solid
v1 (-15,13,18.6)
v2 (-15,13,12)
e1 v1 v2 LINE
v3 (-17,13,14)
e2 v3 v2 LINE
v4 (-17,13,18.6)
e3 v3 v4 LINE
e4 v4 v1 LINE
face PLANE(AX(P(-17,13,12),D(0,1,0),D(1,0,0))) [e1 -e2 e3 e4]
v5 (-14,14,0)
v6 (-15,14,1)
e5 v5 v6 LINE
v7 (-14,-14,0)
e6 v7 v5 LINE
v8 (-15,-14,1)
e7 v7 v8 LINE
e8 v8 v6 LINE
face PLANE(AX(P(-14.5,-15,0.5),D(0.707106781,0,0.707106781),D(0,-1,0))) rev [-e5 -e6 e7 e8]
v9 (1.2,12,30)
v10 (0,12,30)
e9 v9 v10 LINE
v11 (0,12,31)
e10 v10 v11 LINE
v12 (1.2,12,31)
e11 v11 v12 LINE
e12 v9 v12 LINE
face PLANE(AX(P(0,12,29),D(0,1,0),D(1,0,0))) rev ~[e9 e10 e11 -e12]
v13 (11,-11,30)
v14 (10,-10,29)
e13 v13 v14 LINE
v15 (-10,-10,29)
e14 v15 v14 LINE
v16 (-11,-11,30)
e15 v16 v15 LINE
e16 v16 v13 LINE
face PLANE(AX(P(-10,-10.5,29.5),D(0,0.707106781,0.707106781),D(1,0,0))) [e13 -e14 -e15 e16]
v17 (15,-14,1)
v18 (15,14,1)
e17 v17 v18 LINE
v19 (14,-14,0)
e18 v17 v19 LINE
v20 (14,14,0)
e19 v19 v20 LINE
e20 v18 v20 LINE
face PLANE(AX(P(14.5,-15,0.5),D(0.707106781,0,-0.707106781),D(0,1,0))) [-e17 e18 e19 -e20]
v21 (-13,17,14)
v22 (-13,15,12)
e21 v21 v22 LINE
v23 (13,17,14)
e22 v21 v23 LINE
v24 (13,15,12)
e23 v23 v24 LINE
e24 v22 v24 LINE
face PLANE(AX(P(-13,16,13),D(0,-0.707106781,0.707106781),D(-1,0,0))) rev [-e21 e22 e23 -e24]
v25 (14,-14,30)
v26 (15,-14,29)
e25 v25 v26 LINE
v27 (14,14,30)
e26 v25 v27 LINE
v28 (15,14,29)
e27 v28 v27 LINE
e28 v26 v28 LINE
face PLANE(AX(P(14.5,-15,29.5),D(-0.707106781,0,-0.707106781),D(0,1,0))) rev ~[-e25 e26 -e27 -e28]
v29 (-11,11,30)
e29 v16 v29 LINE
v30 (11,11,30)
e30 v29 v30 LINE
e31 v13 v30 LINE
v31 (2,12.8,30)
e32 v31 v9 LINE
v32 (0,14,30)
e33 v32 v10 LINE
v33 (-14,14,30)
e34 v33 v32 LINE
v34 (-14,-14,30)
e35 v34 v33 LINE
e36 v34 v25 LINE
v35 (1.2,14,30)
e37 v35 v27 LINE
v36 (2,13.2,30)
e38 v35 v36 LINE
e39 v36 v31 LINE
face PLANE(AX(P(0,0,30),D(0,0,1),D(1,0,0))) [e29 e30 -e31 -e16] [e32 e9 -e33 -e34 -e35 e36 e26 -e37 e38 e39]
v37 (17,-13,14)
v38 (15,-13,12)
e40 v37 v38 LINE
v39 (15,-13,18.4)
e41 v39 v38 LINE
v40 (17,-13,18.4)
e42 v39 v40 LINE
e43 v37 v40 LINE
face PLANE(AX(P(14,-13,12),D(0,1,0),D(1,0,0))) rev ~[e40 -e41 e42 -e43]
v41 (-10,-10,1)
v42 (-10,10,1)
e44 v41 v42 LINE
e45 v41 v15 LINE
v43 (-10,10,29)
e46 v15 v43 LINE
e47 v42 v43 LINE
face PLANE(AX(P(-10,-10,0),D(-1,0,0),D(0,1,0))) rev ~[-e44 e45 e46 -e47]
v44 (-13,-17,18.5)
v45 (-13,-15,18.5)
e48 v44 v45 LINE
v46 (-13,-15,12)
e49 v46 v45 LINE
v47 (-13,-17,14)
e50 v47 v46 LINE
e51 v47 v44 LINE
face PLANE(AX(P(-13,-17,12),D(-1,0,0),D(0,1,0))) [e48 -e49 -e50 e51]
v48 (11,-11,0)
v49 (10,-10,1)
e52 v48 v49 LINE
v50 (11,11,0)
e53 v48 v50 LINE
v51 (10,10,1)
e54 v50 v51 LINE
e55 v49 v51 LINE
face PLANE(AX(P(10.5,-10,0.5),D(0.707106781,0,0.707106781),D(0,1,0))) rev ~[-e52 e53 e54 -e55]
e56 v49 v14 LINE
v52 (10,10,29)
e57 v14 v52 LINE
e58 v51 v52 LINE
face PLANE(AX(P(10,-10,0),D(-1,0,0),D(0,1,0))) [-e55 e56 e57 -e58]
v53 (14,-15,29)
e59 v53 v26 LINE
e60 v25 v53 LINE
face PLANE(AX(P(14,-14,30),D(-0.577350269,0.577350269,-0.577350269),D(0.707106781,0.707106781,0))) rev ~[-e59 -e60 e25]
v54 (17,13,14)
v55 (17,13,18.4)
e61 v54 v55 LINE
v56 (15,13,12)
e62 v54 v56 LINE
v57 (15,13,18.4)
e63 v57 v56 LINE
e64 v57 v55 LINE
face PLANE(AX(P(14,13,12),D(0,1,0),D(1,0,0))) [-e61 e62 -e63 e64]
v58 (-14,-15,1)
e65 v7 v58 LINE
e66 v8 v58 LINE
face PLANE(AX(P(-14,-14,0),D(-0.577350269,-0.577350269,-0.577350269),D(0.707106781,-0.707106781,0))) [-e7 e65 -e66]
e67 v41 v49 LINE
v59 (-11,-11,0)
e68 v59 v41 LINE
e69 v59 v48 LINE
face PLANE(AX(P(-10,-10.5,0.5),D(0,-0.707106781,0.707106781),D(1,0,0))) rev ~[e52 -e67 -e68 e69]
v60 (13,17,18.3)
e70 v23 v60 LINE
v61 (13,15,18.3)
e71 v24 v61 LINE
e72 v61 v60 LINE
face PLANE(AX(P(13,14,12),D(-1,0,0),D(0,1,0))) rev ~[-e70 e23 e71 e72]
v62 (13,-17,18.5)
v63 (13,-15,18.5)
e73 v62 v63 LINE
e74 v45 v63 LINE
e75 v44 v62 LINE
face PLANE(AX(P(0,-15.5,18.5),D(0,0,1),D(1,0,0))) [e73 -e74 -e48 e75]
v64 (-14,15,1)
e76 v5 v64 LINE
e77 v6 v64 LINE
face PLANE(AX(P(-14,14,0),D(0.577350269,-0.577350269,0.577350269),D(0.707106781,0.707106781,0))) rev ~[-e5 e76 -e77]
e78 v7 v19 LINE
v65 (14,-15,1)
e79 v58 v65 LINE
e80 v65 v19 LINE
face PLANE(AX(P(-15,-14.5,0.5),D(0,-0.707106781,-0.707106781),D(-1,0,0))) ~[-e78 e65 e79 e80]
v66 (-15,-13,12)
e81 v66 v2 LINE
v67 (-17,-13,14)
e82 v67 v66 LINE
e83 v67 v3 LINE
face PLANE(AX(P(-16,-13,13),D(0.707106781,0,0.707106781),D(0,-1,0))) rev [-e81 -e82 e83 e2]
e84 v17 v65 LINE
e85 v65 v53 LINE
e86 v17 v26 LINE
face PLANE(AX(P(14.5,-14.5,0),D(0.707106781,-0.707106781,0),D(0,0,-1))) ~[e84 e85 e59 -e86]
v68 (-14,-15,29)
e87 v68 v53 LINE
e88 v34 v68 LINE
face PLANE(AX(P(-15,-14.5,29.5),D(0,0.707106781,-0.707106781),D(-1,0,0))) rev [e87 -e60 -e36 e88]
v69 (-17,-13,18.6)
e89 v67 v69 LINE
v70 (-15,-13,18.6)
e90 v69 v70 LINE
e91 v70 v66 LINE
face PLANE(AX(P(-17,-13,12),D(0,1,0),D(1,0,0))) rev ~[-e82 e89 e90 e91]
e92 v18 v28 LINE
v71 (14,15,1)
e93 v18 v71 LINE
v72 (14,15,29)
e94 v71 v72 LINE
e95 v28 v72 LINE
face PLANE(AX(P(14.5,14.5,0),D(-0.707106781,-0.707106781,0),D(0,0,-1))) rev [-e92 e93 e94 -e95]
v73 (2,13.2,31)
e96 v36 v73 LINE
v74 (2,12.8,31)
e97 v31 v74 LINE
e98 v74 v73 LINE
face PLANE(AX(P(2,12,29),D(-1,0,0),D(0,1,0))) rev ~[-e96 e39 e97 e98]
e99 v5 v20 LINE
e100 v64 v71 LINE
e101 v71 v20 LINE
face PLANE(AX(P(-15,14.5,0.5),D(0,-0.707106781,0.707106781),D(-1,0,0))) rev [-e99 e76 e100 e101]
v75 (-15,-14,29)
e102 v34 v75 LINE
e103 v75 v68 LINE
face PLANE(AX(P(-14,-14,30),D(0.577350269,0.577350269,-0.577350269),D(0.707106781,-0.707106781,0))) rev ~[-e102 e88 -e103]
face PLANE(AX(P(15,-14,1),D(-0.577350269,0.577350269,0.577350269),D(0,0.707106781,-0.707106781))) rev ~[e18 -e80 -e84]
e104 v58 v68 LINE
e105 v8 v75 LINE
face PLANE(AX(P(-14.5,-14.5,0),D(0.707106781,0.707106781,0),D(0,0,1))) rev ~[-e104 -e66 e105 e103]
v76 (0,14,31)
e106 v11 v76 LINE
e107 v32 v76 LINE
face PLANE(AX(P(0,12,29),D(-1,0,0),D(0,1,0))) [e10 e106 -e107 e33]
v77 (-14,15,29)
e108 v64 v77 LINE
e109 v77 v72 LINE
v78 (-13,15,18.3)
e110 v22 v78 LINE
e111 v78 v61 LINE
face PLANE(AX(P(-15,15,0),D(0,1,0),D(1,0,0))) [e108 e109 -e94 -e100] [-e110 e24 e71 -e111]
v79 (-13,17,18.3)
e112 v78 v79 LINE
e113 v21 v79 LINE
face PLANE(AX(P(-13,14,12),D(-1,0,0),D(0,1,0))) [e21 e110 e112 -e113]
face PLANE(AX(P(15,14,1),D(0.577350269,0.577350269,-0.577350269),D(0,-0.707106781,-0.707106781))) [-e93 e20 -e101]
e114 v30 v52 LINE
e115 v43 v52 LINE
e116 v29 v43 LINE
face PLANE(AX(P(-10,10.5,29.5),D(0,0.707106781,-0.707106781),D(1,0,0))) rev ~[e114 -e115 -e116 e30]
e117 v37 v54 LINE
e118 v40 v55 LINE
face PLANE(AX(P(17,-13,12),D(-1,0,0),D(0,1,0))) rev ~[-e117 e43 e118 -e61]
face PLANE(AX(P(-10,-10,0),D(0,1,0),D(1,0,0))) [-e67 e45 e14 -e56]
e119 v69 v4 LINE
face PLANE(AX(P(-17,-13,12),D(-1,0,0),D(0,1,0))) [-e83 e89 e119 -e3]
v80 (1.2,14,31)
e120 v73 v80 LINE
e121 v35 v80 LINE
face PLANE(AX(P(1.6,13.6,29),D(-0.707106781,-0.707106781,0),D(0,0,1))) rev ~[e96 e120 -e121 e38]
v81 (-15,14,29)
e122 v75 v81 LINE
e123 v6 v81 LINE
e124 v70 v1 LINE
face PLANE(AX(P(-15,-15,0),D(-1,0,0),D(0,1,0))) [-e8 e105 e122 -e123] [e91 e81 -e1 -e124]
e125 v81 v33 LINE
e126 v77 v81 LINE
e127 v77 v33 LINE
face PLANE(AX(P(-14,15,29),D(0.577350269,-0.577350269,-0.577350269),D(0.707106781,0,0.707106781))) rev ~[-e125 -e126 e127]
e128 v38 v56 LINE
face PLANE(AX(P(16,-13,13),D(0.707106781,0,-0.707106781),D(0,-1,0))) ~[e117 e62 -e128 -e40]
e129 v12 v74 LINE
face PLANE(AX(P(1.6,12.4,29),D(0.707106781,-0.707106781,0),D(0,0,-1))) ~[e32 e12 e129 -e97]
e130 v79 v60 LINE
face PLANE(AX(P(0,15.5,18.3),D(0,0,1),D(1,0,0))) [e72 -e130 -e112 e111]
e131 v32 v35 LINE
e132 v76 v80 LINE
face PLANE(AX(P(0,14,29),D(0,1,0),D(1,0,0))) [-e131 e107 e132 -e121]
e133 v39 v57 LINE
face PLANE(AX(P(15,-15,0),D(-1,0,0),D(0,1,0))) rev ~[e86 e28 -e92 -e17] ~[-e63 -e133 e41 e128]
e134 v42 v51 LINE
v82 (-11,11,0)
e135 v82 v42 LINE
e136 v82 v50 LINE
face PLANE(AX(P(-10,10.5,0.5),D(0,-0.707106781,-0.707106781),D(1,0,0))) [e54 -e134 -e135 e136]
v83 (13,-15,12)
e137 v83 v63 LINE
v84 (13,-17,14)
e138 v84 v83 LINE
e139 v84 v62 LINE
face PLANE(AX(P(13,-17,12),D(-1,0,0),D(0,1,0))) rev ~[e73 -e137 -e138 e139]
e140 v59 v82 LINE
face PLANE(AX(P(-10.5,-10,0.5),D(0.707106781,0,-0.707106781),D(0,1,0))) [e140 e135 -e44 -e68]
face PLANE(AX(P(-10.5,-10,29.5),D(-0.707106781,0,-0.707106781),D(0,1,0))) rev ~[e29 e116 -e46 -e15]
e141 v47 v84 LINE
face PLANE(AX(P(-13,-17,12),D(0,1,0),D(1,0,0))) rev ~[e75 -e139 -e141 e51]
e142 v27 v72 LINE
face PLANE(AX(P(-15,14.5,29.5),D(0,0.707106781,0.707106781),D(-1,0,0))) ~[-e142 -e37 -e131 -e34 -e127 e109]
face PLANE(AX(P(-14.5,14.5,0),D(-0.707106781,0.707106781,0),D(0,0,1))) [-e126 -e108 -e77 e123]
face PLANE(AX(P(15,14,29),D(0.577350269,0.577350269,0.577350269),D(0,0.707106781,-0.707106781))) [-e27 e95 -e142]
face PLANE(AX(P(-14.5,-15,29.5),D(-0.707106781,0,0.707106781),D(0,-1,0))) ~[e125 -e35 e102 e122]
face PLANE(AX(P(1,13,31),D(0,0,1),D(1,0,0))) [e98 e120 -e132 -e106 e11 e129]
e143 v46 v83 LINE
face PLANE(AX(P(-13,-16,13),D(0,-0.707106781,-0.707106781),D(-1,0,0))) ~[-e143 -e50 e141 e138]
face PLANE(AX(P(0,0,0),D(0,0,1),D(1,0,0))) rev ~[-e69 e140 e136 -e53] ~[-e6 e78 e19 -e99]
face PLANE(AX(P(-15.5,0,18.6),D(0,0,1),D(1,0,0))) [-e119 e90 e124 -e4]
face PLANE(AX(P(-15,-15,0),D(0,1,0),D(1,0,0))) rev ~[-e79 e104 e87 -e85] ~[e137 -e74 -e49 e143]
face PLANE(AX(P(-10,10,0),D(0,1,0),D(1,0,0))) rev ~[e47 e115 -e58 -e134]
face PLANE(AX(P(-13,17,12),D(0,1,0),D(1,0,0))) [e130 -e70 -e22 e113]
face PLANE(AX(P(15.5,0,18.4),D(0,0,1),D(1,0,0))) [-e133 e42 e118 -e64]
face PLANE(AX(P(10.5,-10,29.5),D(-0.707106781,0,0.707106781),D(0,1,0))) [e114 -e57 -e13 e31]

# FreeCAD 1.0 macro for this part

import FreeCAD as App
import Part
import Sketcher
from FreeCAD import Vector
Q = App.Units.Quantity


def edges_at(feature, points):
    """Names of the edges that pass closest to the given points."""
    edges = feature.Shape.Edges
    near = lambda p: min(range(len(edges)), key=lambda i: edges[i].distToShape(Part.Vertex(*p))[0])
    return sorted({f"Edge{near(p) + 1}" for p in points})

doc = App.newDocument("Part")
body = doc.addObject("PartDesign::Body", "Body")

sketch1 = body.newObject("Sketcher::SketchObject", "Sketch")
sketch1.AttachmentSupport = (doc.getObject("XY_Plane"), [""])
sketch1.MapMode = "FlatFace"
sketch1.AttachmentOffset = App.Placement(Vector(0, 0, 12), App.Rotation())
sketch1.addGeometry([
    Part.LineSegment(Vector(-17, 13, 0), Vector(-17, -13, 0)),
    Part.LineSegment(Vector(-17, -13, 0), Vector(-14, -13, 0)),
    Part.LineSegment(Vector(-14, -13, 0), Vector(-14, 13, 0)),
    Part.LineSegment(Vector(-14, 13, 0), Vector(-17, 13, 0)),
], False)
sketch1.addConstraint([
    Sketcher.Constraint("Coincident", 0, 2, 1, 1),
    Sketcher.Constraint("Coincident", 1, 2, 2, 1),
    Sketcher.Constraint("Coincident", 2, 2, 3, 1),
    Sketcher.Constraint("Coincident", 3, 2, 0, 1),
    Sketcher.Constraint("Vertical", 0),
    Sketcher.Constraint("Horizontal", 1),
    Sketcher.Constraint("Vertical", 2),
    Sketcher.Constraint("Horizontal", 3),
    Sketcher.Constraint("DistanceX", 1, 1, 1, 2, Q("3 mm")),
    Sketcher.Constraint("DistanceY", 0, 2, 0, 1, Q("26 mm")),
    Sketcher.Constraint("DistanceX", 0, 2, -1, 1, Q("17 mm")),
    Sketcher.Constraint("DistanceY", 0, 2, -1, 1, Q("13 mm")),
])
pad1 = body.newObject("PartDesign::Pad", "Pad")
pad1.Profile = sketch1
pad1.Length = 6.6
doc.recompute()

chamfer = body.newObject("PartDesign::Chamfer", "Chamfer")
chamfer.Base = (pad1, edges_at(pad1, [(-17, 0, 12)]))
chamfer.Size = 2
body2 = doc.addObject("PartDesign::Body", "Body001")

sketch2 = body2.newObject("Sketcher::SketchObject", "Sketch001")
sketch2.AttachmentSupport = (doc.getObject("XY_Plane001"), [""])
sketch2.MapMode = "FlatFace"
sketch2.AttachmentOffset = App.Placement(Vector(0, 0, 12), App.Rotation())
sketch2.addGeometry([
    Part.LineSegment(Vector(14, 13, 0), Vector(14, -13, 0)),
    Part.LineSegment(Vector(14, -13, 0), Vector(17, -13, 0)),
    Part.LineSegment(Vector(17, -13, 0), Vector(17, 13, 0)),
    Part.LineSegment(Vector(17, 13, 0), Vector(14, 13, 0)),
], False)
sketch2.addConstraint([
    Sketcher.Constraint("Coincident", 0, 2, 1, 1),
    Sketcher.Constraint("Coincident", 1, 2, 2, 1),
    Sketcher.Constraint("Coincident", 2, 2, 3, 1),
    Sketcher.Constraint("Coincident", 3, 2, 0, 1),
    Sketcher.Constraint("Vertical", 0),
    Sketcher.Constraint("Horizontal", 1),
    Sketcher.Constraint("Vertical", 2),
    Sketcher.Constraint("Horizontal", 3),
    Sketcher.Constraint("DistanceX", 1, 1, 1, 2, Q("3 mm")),
    Sketcher.Constraint("DistanceY", 0, 2, 0, 1, Q("26 mm")),
    Sketcher.Constraint("DistanceX", -1, 1, 0, 2, Q("14 mm")),
    Sketcher.Constraint("DistanceY", 0, 2, -1, 1, Q("13 mm")),
])
pad2 = body2.newObject("PartDesign::Pad", "Pad001")
pad2.Profile = sketch2
pad2.Length = 6.4
doc.recompute()

chamfer2 = body2.newObject("PartDesign::Chamfer", "Chamfer001")
chamfer2.Base = (pad2, edges_at(pad2, [(17, 0, 12)]))
chamfer2.Size = 2
body3 = doc.addObject("PartDesign::Body", "Body002")

sketch3 = body3.newObject("Sketcher::SketchObject", "Sketch002")
sketch3.AttachmentSupport = (doc.getObject("XY_Plane002"), [""])
sketch3.MapMode = "FlatFace"
sketch3.AttachmentOffset = App.Placement(Vector(0, 0, 12), App.Rotation())
sketch3.addGeometry([
    Part.LineSegment(Vector(-13, -14, 0), Vector(-13, -17, 0)),
    Part.LineSegment(Vector(-13, -17, 0), Vector(13, -17, 0)),
    Part.LineSegment(Vector(13, -17, 0), Vector(13, -14, 0)),
    Part.LineSegment(Vector(13, -14, 0), Vector(-13, -14, 0)),
], False)
sketch3.addConstraint([
    Sketcher.Constraint("Coincident", 0, 2, 1, 1),
    Sketcher.Constraint("Coincident", 1, 2, 2, 1),
    Sketcher.Constraint("Coincident", 2, 2, 3, 1),
    Sketcher.Constraint("Coincident", 3, 2, 0, 1),
    Sketcher.Constraint("Vertical", 0),
    Sketcher.Constraint("Horizontal", 1),
    Sketcher.Constraint("Vertical", 2),
    Sketcher.Constraint("Horizontal", 3),
    Sketcher.Constraint("DistanceX", 1, 1, 1, 2, Q("26 mm")),
    Sketcher.Constraint("DistanceY", 0, 2, 0, 1, Q("3 mm")),
    Sketcher.Constraint("DistanceX", 0, 2, -1, 1, Q("13 mm")),
    Sketcher.Constraint("DistanceY", 0, 2, -1, 1, Q("17 mm")),
])
pad3 = body3.newObject("PartDesign::Pad", "Pad002")
pad3.Profile = sketch3
pad3.Length = 6.5
doc.recompute()

chamfer3 = body3.newObject("PartDesign::Chamfer", "Chamfer002")
chamfer3.Base = (pad3, edges_at(pad3, [(0, -17, 12)]))
chamfer3.Size = 2
body4 = doc.addObject("PartDesign::Body", "Body003")

sketch4 = body4.newObject("Sketcher::SketchObject", "Sketch003")
sketch4.AttachmentSupport = (doc.getObject("XY_Plane003"), [""])
sketch4.MapMode = "FlatFace"
sketch4.AttachmentOffset = App.Placement(Vector(0, 0, 12), App.Rotation())
sketch4.addGeometry([
    Part.LineSegment(Vector(-13, 17, 0), Vector(-13, 14, 0)),
    Part.LineSegment(Vector(-13, 14, 0), Vector(13, 14, 0)),
    Part.LineSegment(Vector(13, 14, 0), Vector(13, 17, 0)),
    Part.LineSegment(Vector(13, 17, 0), Vector(-13, 17, 0)),
], False)
sketch4.addConstraint([
    Sketcher.Constraint("Coincident", 0, 2, 1, 1),
    Sketcher.Constraint("Coincident", 1, 2, 2, 1),
    Sketcher.Constraint("Coincident", 2, 2, 3, 1),
    Sketcher.Constraint("Coincident", 3, 2, 0, 1),
    Sketcher.Constraint("Vertical", 0),
    Sketcher.Constraint("Horizontal", 1),
    Sketcher.Constraint("Vertical", 2),
    Sketcher.Constraint("Horizontal", 3),
    Sketcher.Constraint("DistanceX", 1, 1, 1, 2, Q("26 mm")),
    Sketcher.Constraint("DistanceY", 0, 2, 0, 1, Q("3 mm")),
    Sketcher.Constraint("DistanceX", 0, 2, -1, 1, Q("13 mm")),
    Sketcher.Constraint("DistanceY", -1, 1, 0, 2, Q("14 mm")),
])
pad4 = body4.newObject("PartDesign::Pad", "Pad003")
pad4.Profile = sketch4
pad4.Length = 6.3
doc.recompute()

chamfer4 = body4.newObject("PartDesign::Chamfer", "Chamfer003")
chamfer4.Base = (pad4, edges_at(pad4, [(0, 17, 12)]))
chamfer4.Size = 2
body5 = doc.addObject("PartDesign::Body", "Body004")

sketch5 = body5.newObject("Sketcher::SketchObject", "Sketch004")
sketch5.AttachmentSupport = (doc.getObject("XY_Plane004"), [""])
sketch5.MapMode = "FlatFace"
sketch5.AttachmentOffset = App.Placement(Vector(0, 0, 29), App.Rotation())
sketch5.addGeometry([
    Part.LineSegment(Vector(0, 14, 0), Vector(0, 12, 0)),
    Part.LineSegment(Vector(0, 12, 0), Vector(2, 12, 0)),
    Part.LineSegment(Vector(2, 12, 0), Vector(2, 14, 0)),
    Part.LineSegment(Vector(2, 14, 0), Vector(0, 14, 0)),
], False)
sketch5.addConstraint([
    Sketcher.Constraint("Coincident", 0, 2, 1, 1),
    Sketcher.Constraint("Coincident", 1, 2, 2, 1),
    Sketcher.Constraint("Coincident", 2, 2, 3, 1),
    Sketcher.Constraint("Coincident", 3, 2, 0, 1),
    Sketcher.Constraint("Vertical", 0),
    Sketcher.Constraint("Horizontal", 1),
    Sketcher.Constraint("Vertical", 2),
    Sketcher.Constraint("Horizontal", 3),
    Sketcher.Constraint("PointOnObject", 0, 2, -2),
    Sketcher.Constraint("Equal", 3, 0),
    Sketcher.Constraint("DistanceX", 1, 1, 1, 2, Q("2 mm")),
    Sketcher.Constraint("DistanceY", -1, 1, 0, 2, Q("12 mm")),
])
pad5 = body5.newObject("PartDesign::Pad", "Pad004")
pad5.Profile = sketch5
pad5.Length = 2
doc.recompute()

chamfer5 = body5.newObject("PartDesign::Chamfer", "Chamfer004")
chamfer5.Base = (pad5, edges_at(pad5, [(2, 12, 30), (2, 14, 30)]))
chamfer5.Size = 0.8
body6 = doc.addObject("PartDesign::Body", "Body005")

sketch6 = body6.newObject("Sketcher::SketchObject", "Sketch005")
sketch6.AttachmentSupport = (doc.getObject("XY_Plane005"), [""])
sketch6.MapMode = "FlatFace"
sketch6.addGeometry([
    Part.LineSegment(Vector(-10, 10, 0), Vector(-10, -10, 0)),
    Part.LineSegment(Vector(-10, -10, 0), Vector(10, -10, 0)),
    Part.LineSegment(Vector(10, -10, 0), Vector(10, 10, 0)),
    Part.LineSegment(Vector(10, 10, 0), Vector(-10, 10, 0)),
], False)
sketch6.addConstraint([
    Sketcher.Constraint("Coincident", 0, 2, 1, 1),
    Sketcher.Constraint("Coincident", 1, 2, 2, 1),
    Sketcher.Constraint("Coincident", 2, 2, 3, 1),
    Sketcher.Constraint("Coincident", 3, 2, 0, 1),
    Sketcher.Constraint("Vertical", 0),
    Sketcher.Constraint("Horizontal", 1),
    Sketcher.Constraint("Vertical", 2),
    Sketcher.Constraint("Horizontal", 3),
    Sketcher.Constraint("Symmetric", 0, 2, 2, 2, -1, 1),
    Sketcher.Constraint("Equal", 3, 0),
    Sketcher.Constraint("DistanceX", 1, 1, 1, 2, Q("20 mm")),
])
pad6 = body6.newObject("PartDesign::Pad", "Pad005")
pad6.Profile = sketch6
pad6.Length = 30
body7 = doc.addObject("PartDesign::Body", "Body006")

sketch7 = body7.newObject("Sketcher::SketchObject", "Sketch006")
sketch7.AttachmentSupport = (doc.getObject("XY_Plane006"), [""])
sketch7.MapMode = "FlatFace"
sketch7.addGeometry([
    Part.LineSegment(Vector(-15, 15, 0), Vector(-15, -15, 0)),
    Part.LineSegment(Vector(-15, -15, 0), Vector(15, -15, 0)),
    Part.LineSegment(Vector(15, -15, 0), Vector(15, 15, 0)),
    Part.LineSegment(Vector(15, 15, 0), Vector(-15, 15, 0)),
], False)
sketch7.addConstraint([
    Sketcher.Constraint("Coincident", 0, 2, 1, 1),
    Sketcher.Constraint("Coincident", 1, 2, 2, 1),
    Sketcher.Constraint("Coincident", 2, 2, 3, 1),
    Sketcher.Constraint("Coincident", 3, 2, 0, 1),
    Sketcher.Constraint("Vertical", 0),
    Sketcher.Constraint("Horizontal", 1),
    Sketcher.Constraint("Vertical", 2),
    Sketcher.Constraint("Horizontal", 3),
    Sketcher.Constraint("Symmetric", 0, 2, 2, 2, -1, 1),
    Sketcher.Constraint("Equal", 3, 0),
    Sketcher.Constraint("DistanceX", 1, 1, 1, 2, Q("30 mm")),
])
pad7 = body7.newObject("PartDesign::Pad", "Pad006")
pad7.Profile = sketch7
pad7.Length = 30
doc.recompute()

boolean = body7.newObject("PartDesign::Boolean", "Boolean")
boolean.Type = "Cut"
boolean.addObjects([body6])
doc.recompute()

chamfer6 = body7.newObject("PartDesign::Chamfer", "Chamfer005")
chamfer6.Base = (boolean, edges_at(boolean, [
    (-15, -15, 15),
    (-15, 0, 30),
    (-15, 15, 15),
    (-15, 0, 0),
    (0, -15, 0),
    (15, -15, 15),
    (0, -15, 30),
    (0, 15, 30),
    (15, 0, 30),
    (-10, 0, 30),
    (0, -10, 30),
    (10, 0, 30),
    (0, 10, 30),
    (0, 15, 0),
    (15, 15, 15),
    (15, 0, 0),
    (-10, 0, 0),
    (0, -10, 0),
    (10, 0, 0),
    (0, 10, 0),
]))
chamfer6.Size = 1
doc.recompute()

boolean2 = body7.newObject("PartDesign::Boolean", "Boolean001")
boolean2.Type = "Fuse"
boolean2.addObjects([body])
doc.recompute()

boolean3 = body7.newObject("PartDesign::Boolean", "Boolean002")
boolean3.Type = "Fuse"
boolean3.addObjects([body2])
doc.recompute()

boolean4 = body7.newObject("PartDesign::Boolean", "Boolean003")
boolean4.Type = "Fuse"
boolean4.addObjects([body3])
doc.recompute()

boolean5 = body7.newObject("PartDesign::Boolean", "Boolean004")
boolean5.Type = "Fuse"
boolean5.addObjects([body4])
doc.recompute()

boolean6 = body7.newObject("PartDesign::Boolean", "Boolean005")
boolean6.Type = "Fuse"
boolean6.addObjects([body5])

doc.recompute()
